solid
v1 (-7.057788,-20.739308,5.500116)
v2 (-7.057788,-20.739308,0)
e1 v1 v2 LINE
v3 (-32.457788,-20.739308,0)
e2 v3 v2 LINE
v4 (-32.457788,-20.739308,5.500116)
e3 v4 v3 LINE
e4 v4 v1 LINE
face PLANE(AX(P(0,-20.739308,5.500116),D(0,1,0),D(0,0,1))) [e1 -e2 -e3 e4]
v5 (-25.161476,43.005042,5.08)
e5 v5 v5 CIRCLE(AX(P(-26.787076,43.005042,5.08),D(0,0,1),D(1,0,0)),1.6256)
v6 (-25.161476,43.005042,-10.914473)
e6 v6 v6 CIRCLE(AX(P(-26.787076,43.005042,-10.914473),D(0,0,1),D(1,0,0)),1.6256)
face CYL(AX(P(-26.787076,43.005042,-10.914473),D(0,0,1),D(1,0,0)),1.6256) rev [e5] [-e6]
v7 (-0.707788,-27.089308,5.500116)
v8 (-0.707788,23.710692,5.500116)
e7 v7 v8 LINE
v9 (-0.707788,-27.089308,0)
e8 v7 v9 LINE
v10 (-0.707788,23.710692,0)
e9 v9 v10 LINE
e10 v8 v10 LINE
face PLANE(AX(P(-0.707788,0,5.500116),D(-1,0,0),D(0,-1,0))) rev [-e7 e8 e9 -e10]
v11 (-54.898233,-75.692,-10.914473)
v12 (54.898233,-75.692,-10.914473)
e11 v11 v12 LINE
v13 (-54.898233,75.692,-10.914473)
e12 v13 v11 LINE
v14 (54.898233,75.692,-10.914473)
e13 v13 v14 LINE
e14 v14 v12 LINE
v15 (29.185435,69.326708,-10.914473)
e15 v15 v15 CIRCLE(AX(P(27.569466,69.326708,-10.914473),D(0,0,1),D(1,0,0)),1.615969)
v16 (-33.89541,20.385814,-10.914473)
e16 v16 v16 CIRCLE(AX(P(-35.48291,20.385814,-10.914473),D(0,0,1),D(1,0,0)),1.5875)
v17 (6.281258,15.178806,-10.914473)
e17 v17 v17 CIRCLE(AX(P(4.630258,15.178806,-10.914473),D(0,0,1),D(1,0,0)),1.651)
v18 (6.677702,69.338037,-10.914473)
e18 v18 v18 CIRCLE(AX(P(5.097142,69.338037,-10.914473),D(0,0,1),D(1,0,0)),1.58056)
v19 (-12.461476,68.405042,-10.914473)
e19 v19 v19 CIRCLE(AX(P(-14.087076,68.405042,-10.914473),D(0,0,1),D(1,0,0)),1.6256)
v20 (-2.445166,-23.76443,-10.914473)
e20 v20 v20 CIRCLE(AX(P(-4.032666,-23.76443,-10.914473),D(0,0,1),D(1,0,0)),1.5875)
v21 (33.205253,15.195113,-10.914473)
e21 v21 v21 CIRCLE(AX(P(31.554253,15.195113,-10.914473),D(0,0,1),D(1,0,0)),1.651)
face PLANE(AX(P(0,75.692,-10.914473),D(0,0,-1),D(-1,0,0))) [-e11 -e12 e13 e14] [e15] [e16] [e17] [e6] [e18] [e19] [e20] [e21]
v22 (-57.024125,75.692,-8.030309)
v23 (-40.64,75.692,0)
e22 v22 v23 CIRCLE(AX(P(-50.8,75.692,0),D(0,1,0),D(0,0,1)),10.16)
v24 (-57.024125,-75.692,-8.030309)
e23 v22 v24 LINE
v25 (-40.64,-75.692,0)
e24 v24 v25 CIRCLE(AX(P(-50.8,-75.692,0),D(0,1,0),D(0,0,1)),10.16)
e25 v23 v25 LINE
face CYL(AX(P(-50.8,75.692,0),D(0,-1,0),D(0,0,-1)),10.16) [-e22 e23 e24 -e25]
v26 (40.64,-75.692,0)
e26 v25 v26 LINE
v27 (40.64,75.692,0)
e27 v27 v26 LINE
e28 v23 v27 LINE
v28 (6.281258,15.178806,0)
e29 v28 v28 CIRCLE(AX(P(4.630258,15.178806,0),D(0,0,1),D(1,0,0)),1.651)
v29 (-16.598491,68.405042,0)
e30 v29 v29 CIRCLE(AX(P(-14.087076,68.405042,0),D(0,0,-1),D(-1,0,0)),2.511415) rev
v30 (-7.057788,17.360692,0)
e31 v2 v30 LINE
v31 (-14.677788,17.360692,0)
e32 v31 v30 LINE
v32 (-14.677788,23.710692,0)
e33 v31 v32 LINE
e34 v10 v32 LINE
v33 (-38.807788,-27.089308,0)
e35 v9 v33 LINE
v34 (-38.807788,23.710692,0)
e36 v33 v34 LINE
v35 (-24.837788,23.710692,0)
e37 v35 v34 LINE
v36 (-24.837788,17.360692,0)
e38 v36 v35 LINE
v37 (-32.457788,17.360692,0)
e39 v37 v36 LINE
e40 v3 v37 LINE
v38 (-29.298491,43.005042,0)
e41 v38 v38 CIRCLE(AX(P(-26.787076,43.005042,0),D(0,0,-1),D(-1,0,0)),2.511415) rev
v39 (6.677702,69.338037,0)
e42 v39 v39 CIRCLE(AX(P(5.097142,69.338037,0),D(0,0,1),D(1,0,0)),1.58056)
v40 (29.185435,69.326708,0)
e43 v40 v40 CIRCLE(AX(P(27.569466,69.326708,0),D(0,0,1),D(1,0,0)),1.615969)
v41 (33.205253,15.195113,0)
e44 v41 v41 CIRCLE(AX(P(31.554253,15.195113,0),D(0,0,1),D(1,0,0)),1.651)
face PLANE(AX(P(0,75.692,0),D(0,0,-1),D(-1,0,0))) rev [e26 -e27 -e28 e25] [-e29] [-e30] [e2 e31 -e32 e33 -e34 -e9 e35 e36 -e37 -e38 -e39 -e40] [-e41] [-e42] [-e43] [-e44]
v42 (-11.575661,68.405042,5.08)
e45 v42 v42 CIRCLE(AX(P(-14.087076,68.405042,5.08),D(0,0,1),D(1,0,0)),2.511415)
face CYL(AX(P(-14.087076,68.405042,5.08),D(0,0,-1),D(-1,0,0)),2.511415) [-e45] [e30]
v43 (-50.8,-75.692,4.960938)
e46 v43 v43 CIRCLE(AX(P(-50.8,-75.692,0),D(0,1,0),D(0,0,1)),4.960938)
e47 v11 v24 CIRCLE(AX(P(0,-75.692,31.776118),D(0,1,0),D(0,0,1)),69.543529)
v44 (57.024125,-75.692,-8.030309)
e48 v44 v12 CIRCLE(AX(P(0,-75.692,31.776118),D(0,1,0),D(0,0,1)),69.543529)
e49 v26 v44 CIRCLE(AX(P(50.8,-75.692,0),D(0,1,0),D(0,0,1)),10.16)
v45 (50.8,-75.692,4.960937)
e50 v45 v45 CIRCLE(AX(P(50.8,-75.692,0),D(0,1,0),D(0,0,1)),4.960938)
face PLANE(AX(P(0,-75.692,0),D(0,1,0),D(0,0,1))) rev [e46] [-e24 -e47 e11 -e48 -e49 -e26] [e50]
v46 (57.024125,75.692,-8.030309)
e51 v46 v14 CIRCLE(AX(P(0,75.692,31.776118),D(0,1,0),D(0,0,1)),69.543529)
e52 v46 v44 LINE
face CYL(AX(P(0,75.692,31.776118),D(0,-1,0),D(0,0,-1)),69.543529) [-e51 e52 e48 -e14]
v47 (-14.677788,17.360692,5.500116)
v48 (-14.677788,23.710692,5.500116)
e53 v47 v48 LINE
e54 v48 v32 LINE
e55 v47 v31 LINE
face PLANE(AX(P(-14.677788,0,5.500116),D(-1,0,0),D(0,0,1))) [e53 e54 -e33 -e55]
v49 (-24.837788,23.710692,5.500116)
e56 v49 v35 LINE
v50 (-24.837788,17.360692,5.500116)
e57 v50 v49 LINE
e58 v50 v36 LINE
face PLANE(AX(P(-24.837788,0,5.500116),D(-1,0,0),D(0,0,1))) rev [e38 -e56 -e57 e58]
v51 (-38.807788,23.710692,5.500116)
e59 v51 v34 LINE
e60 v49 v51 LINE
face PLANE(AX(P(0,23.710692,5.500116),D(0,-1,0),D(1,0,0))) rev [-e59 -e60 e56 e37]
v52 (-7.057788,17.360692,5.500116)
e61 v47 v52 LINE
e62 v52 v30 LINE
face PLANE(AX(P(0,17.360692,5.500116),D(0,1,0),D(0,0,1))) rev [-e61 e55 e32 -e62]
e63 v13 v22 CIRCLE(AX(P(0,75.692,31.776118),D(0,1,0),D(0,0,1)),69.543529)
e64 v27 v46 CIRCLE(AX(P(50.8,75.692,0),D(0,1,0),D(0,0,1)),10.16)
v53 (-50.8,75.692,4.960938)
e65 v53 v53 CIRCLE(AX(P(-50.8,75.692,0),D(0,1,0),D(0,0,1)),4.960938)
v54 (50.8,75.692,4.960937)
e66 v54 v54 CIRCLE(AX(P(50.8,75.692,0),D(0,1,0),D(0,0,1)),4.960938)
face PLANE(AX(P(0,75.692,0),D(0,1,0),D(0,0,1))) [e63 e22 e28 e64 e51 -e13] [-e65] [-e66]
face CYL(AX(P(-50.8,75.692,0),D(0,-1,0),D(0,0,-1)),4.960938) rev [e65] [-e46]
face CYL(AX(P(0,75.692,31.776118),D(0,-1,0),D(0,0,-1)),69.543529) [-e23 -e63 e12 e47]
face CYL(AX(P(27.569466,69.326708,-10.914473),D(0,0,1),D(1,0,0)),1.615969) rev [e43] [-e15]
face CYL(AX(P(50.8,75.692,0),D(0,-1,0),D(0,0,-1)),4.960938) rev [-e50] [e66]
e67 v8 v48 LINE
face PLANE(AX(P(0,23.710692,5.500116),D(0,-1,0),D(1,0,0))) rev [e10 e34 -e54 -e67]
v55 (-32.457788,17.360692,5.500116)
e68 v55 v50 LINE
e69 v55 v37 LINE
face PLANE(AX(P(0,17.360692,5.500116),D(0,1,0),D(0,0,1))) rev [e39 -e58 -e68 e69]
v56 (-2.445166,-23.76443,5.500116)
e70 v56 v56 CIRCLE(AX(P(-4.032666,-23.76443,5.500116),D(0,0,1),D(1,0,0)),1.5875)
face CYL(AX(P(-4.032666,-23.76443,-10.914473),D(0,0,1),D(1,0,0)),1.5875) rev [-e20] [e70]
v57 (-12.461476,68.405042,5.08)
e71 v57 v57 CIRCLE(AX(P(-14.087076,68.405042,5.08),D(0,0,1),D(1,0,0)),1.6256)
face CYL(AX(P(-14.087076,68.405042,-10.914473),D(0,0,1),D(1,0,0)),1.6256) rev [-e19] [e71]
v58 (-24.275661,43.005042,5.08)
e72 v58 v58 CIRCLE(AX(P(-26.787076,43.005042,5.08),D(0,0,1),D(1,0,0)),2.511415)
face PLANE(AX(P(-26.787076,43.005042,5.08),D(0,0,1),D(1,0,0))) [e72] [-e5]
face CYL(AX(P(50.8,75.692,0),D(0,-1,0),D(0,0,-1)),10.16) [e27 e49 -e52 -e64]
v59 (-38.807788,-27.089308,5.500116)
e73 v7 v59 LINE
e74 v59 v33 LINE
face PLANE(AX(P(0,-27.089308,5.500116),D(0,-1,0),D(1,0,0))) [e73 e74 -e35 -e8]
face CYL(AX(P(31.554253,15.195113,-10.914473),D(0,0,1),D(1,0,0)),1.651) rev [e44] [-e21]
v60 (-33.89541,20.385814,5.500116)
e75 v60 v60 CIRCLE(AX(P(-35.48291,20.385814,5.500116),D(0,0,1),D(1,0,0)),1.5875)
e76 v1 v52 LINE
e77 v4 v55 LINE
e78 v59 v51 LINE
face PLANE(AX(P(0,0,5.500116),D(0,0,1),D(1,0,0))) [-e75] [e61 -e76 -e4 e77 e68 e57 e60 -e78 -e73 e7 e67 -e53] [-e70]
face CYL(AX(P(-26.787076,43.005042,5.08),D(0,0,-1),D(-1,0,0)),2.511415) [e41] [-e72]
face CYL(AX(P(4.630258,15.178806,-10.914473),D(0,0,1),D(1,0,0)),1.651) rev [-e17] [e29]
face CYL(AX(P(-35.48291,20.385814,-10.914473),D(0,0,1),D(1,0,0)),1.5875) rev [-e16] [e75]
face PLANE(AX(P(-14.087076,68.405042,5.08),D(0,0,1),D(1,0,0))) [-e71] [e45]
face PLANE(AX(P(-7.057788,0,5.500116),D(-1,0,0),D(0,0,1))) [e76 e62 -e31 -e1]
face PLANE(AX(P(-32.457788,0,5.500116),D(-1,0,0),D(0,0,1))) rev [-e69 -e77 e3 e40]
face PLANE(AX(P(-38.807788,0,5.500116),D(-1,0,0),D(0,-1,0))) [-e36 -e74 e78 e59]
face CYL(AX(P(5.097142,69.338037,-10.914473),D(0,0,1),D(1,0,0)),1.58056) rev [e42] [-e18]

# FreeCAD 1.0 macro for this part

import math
import FreeCAD as App
import Part
import Sketcher

V = App.Vector
Q = App.Units.Quantity

doc = App.newDocument("Part")
body = doc.addObject("PartDesign::Body", "Body")

# Sketch on XZ plane
sketch1 = doc.addObject("Sketcher::SketchObject", "Sketch")
body.addObject(sketch1)
sketch1.AttachmentSupport = (doc.XZ_Plane, [""])
sketch1.MapMode = "FlatFace"
sketch1.addGeometry([
    Part.ArcOfCircle(Part.Circle(V(0, 31.8, 0), V(0, 0, 1), 69.5), math.radians(-145.08), math.radians(-142.13)),  # 0
    Part.ArcOfCircle(Part.Circle(V(-50.8, 0, 0), V(0, 0, 1), 10.2), math.radians(0), math.radians(232)),  # 1
    Part.LineSegment(V(-40.6, 0, 0), V(40.6, 0, 0)),  # 2
    Part.ArcOfCircle(Part.Circle(V(50.8, 0, 0), V(0, 0, 1), 10.2), math.radians(-52), math.radians(180)),  # 3
    Part.ArcOfCircle(Part.Circle(V(0, 31.8, 0), V(0, 0, 1), 69.5), math.radians(-37.87), math.radians(-34.92)),  # 4
    Part.LineSegment(V(54.9, -10.9, 0), V(-54.9, -10.9, 0)),  # 5
    Part.Circle(V(-50.8, 0, 0), V(0, 0, 1), 5),  # 6
    Part.Circle(V(50.8, 0, 0), V(0, 0, 1), 5),  # 7
], False)
sketch1.addConstraint([
    Sketcher.Constraint("Coincident", 0, 1, 1, 2),
    Sketcher.Constraint("Coincident", 1, 1, 2, 1),
    Sketcher.Constraint("Coincident", 2, 2, 3, 2),
    Sketcher.Constraint("Coincident", 3, 1, 4, 2),
    Sketcher.Constraint("Coincident", 4, 1, 5, 1),
    Sketcher.Constraint("Coincident", 5, 2, 0, 2),
    Sketcher.Constraint("Horizontal", 2),
    Sketcher.Constraint("Horizontal", 5),
    Sketcher.Constraint("Coincident", 4, 3, 0, 3),
    Sketcher.Constraint("Coincident", 6, 3, 1, 3),
    Sketcher.Constraint("Coincident", 7, 3, 3, 3),
    Sketcher.Constraint("Equal", 1, 3),
    Sketcher.Constraint("Equal", 0, 4),
    Sketcher.Constraint("Equal", 6, 7),
    Sketcher.Constraint("Symmetric", 1, 3, 3, 3, -1, 1),
    Sketcher.Constraint("Symmetric", 0, 1, 3, 1, -2),
    Sketcher.Constraint("PointOnObject", 1, 1, -1),
    Sketcher.Constraint("Radius", 1, Q("0.4 in")),
    Sketcher.Constraint("Diameter", 6, Q("0.390625 in")),
    Sketcher.Constraint("DistanceX", 2, 1, 2, 2, Q("3.2 in")),
    Sketcher.Constraint("Radius", 0, 69.54353),
    Sketcher.Constraint("DistanceX", 5, 2, 5, 1, 109.796466),
    Sketcher.Constraint("DistanceY", 0, 1, -1, 1, 8.030309),
])
pad1 = doc.addObject("PartDesign::Pad", "Pad")
body.addObject(pad1)
pad1.Profile = sketch1
pad1.Length = Q("5.96 in")
pad1.Midplane = True

# Sketch on XY plane
sketch2 = doc.addObject("Sketcher::SketchObject", "Sketch001")
body.addObject(sketch2)
sketch2.AttachmentSupport = (doc.XY_Plane, [""])
sketch2.MapMode = "FlatFace"
sketch2.addGeometry([
    Part.Circle(V(-14.1, 68.4, 0), V(0, 0, 1), 1.6),
    Part.Circle(V(-26.8, 43, 0), V(0, 0, 1), 1.6),
], False)
sketch2.addConstraint([
    Sketcher.Constraint("Equal", 0, 1),
    Sketcher.Constraint("Diameter", 0, Q("0.128 in")),
    Sketcher.Constraint("DistanceY", 1, 3, 0, 3, Q("1 in")),
    Sketcher.Constraint("DistanceX", 1, 3, 0, 3, Q("0.5 in")),
    Sketcher.Constraint("DistanceY", -1, 1, 0, 3, 68.405042),
    Sketcher.Constraint("DistanceX", 0, 3, -1, 1, 14.087076),
])
pocket1 = doc.addObject("PartDesign::Pocket", "Pocket")
body.addObject(pocket1)
pocket1.Profile = sketch2
pocket1.Type = "ThroughAll"

# Sketch on XY plane
sketch3 = doc.addObject("Sketcher::SketchObject", "Sketch002")
body.addObject(sketch3)
sketch3.AttachmentSupport = (doc.XY_Plane, [""])
sketch3.MapMode = "FlatFace"
sketch3.addGeometry([
    Part.Circle(V(-14.1, 68.4, 0), V(0, 0, 1), 2.5),
    Part.Circle(V(-14.1, 68.4, 0), V(0, 0, 1), 1.6),
    Part.Circle(V(-26.8, 43, 0), V(0, 0, 1), 2.5),
    Part.Circle(V(-26.8, 43, 0), V(0, 0, 1), 1.6),
], False)
sketch3.addConstraint([
    Sketcher.Constraint("Coincident", 1, 3, 0, 3),
    Sketcher.Constraint("Coincident", 3, 3, 2, 3),
    Sketcher.Constraint("Equal", 0, 2),
    Sketcher.Constraint("Equal", 1, 3),
    Sketcher.Constraint("Diameter", 1, Q("0.128 in")),
    Sketcher.Constraint("DistanceY", 2, 3, 0, 3, Q("1 in")),
    Sketcher.Constraint("DistanceX", 2, 3, 0, 3, Q("0.5 in")),
    Sketcher.Constraint("Diameter", 0, 5.02283),
    Sketcher.Constraint("DistanceY", -1, 1, 0, 3, 68.405042),
    Sketcher.Constraint("DistanceX", 0, 3, -1, 1, 14.087076),
])
pad2 = doc.addObject("PartDesign::Pad", "Pad001")
body.addObject(pad2)
pad2.Profile = sketch3
pad2.Length = Q("0.2 in")

# Sketch on XY plane
sketch4 = doc.addObject("Sketcher::SketchObject", "Sketch003")
body.addObject(sketch4)
sketch4.AttachmentSupport = (doc.XY_Plane, [""])
sketch4.MapMode = "FlatFace"
sketch4.addGeometry([
    Part.Circle(V(5.1, 69.3, 0), V(0, 0, 1), 1.6),
    Part.Circle(V(27.6, 69.3, 0), V(0, 0, 1), 1.6),
    Part.Circle(V(4.6, 15.2, 0), V(0, 0, 1), 1.7),
    Part.Circle(V(31.6, 15.2, 0), V(0, 0, 1), 1.7),
], False)
sketch4.addConstraint([
    Sketcher.Constraint("Equal", 2, 3),
    Sketcher.Constraint("Diameter", 2, Q("0.13 in")),
    Sketcher.Constraint("DistanceX", 2, 3, 3, 3, Q("1.0599998 in")),
    Sketcher.Constraint("Diameter", 0, 3.161119),
    Sketcher.Constraint("Diameter", 1, 3.231938),
    Sketcher.Constraint("DistanceY", -1, 1, 1, 3, 69.326708),
    Sketcher.Constraint("DistanceX", -1, 1, 2, 3, 4.630258),
    Sketcher.Constraint("DistanceY", 1, 3, 0, 3, 0.011329),
    Sketcher.Constraint("DistanceY", 2, 3, 0, 3, 54.159231),
    Sketcher.Constraint("DistanceX", 0, 3, 3, 3, 26.457111),
    Sketcher.Constraint("DistanceX", -1, 1, 1, 3, 27.569466),
    Sketcher.Constraint("DistanceY", -1, 1, 3, 3, 15.195113),
])
pocket2 = doc.addObject("PartDesign::Pocket", "Pocket001")
body.addObject(pocket2)
pocket2.Profile = sketch4
pocket2.Type = "ThroughAll"

# Sketch on XY plane
sketch5 = doc.addObject("Sketcher::SketchObject", "Sketch004")
body.addObject(sketch5)
sketch5.AttachmentSupport = (doc.XY_Plane, [""])
sketch5.MapMode = "FlatFace"
sketch5.addGeometry([
    Part.LineSegment(V(-32, 17, 0), V(-25, 17, 0)),  # 0
    Part.LineSegment(V(-25, 17, 0), V(-25, 24, 0)),  # 1
    Part.LineSegment(V(-25, 24, 0), V(-39, 24, 0)),  # 2
    Part.LineSegment(V(-39, 24, 0), V(-39, -27, 0)),  # 3
    Part.LineSegment(V(-39, -27, 0), V(-1, -27, 0)),  # 4
    Part.LineSegment(V(-1, -27, 0), V(-1, 24, 0)),  # 5
    Part.LineSegment(V(-1, 24, 0), V(-15, 24, 0)),  # 6
    Part.LineSegment(V(-15, 24, 0), V(-15, 17, 0)),  # 7
    Part.LineSegment(V(-15, 17, 0), V(-7, 17, 0)),  # 8
    Part.LineSegment(V(-7, 17, 0), V(-7, -21, 0)),  # 9
    Part.LineSegment(V(-7, -21, 0), V(-32, -21, 0)),  # 10
    Part.LineSegment(V(-32, -21, 0), V(-32, 17, 0)),  # 11
], False)
sketch5.addConstraint([
    Sketcher.Constraint("Coincident", 0, 2, 1, 1),
    Sketcher.Constraint("Coincident", 1, 2, 2, 1),
    Sketcher.Constraint("Coincident", 2, 2, 3, 1),
    Sketcher.Constraint("Coincident", 3, 2, 4, 1),
    Sketcher.Constraint("Coincident", 4, 2, 5, 1),
    Sketcher.Constraint("Coincident", 5, 2, 6, 1),
    Sketcher.Constraint("Coincident", 6, 2, 7, 1),
    Sketcher.Constraint("Coincident", 7, 2, 8, 1),
    Sketcher.Constraint("Coincident", 8, 2, 9, 1),
    Sketcher.Constraint("Coincident", 9, 2, 10, 1),
    Sketcher.Constraint("Coincident", 10, 2, 11, 1),
    Sketcher.Constraint("Coincident", 11, 2, 0, 1),
    Sketcher.Constraint("Horizontal", 0),
    Sketcher.Constraint("Vertical", 1),
    Sketcher.Constraint("Horizontal", 2),
    Sketcher.Constraint("Vertical", 3),
    Sketcher.Constraint("Horizontal", 4),
    Sketcher.Constraint("Vertical", 5),
    Sketcher.Constraint("Horizontal", 6),
    Sketcher.Constraint("Vertical", 7),
    Sketcher.Constraint("Horizontal", 8),
    Sketcher.Constraint("Vertical", 9),
    Sketcher.Constraint("Horizontal", 10),
    Sketcher.Constraint("Vertical", 11),
    Sketcher.Constraint("Horizontal", 2, 2, 5, 2),
    Sketcher.Constraint("Horizontal", 0, 2, 7, 2),
    Sketcher.Constraint("Equal", 2, 6),
    Sketcher.Constraint("Equal", 0, 8),
    Sketcher.Constraint("Equal", 4, 9),
    Sketcher.Constraint("DistanceX", 10, 2, 10, 1, Q("1 in")),
    Sketcher.Constraint("DistanceY", 3, 2, 3, 1, Q("2 in")),
    Sketcher.Constraint("DistanceX", 0, 1, 0, 2, Q("0.3 in")),
    Sketcher.Constraint("DistanceX", 4, 1, 4, 2, Q("1.5 in")),
    Sketcher.Constraint("DistanceY", 1, 1, 1, 2, Q("0.25 in")),
    Sketcher.Constraint("DistanceX", 0, 2, -1, 1, 24.837788),
    Sketcher.Constraint("DistanceY", -1, 1, 0, 2, 17.360692),
])
pad3 = doc.addObject("PartDesign::Pad", "Pad002")
body.addObject(pad3)
pad3.Profile = sketch5
pad3.Length = 5.500116

# Sketch on XY plane
sketch6 = doc.addObject("Sketcher::SketchObject", "Sketch005")
body.addObject(sketch6)
sketch6.AttachmentSupport = (doc.XY_Plane, [""])
sketch6.MapMode = "FlatFace"
sketch6.AttachmentOffset = App.Placement(V(0, 0, 5.500116), App.Rotation())
sketch6.addGeometry([
    Part.Circle(V(-35.5, 20.4, 0), V(0, 0, 1), 1.6),
    Part.Circle(V(-4, -23.8, 0), V(0, 0, 1), 1.6),
], False)
sketch6.addConstraint([
    Sketcher.Constraint("Equal", 0, 1),
    Sketcher.Constraint("Diameter", 0, Q("0.125 in")),
    Sketcher.Constraint("DistanceX", 0, 3, -1, 1, 35.48291),
    Sketcher.Constraint("DistanceY", 1, 3, -1, 1, 23.76443),
    Sketcher.Constraint("DistanceY", -1, 1, 0, 3, 20.385814),
    Sketcher.Constraint("DistanceX", 1, 3, -1, 1, 4.032666),
])
pocket3 = doc.addObject("PartDesign::Pocket", "Pocket002")
body.addObject(pocket3)
pocket3.Profile = sketch6
pocket3.Type = "ThroughAll"

doc.recompute()
